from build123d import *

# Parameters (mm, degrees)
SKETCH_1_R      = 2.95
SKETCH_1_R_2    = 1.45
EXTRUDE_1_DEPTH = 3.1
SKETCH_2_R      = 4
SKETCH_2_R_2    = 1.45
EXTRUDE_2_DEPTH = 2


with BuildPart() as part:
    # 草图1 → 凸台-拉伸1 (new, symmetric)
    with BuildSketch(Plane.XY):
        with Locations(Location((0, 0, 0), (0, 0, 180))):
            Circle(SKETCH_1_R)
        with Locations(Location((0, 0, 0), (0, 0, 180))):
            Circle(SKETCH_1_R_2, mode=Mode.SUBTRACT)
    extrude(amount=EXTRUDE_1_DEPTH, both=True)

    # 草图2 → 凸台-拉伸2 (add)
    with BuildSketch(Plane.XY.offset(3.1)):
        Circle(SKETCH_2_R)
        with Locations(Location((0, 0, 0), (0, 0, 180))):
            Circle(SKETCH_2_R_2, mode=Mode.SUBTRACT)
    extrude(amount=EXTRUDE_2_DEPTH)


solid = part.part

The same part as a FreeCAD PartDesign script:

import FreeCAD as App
import Part
import Sketcher
from FreeCAD import Vector

doc = App.newDocument("Part")
body = doc.addObject("PartDesign::Body", "Body")

# Sketch on XY plane
sketch1 = body.newObject("Sketcher::SketchObject", "Sketch")
sketch1.AttachmentSupport = (doc.getObject("XY_Plane"), [""])
sketch1.MapMode = "FlatFace"
sketch1.addGeometry(Part.Circle(Vector(0, 0, 0), Vector(0, 0, 1), 3), False)
sketch1.addGeometry(Part.Circle(Vector(0, 0, 0), Vector(0, 0, 1), 1.4), False)
sketch1.addConstraint(Sketcher.Constraint("Coincident", 0, 3, -1, 1))
sketch1.addConstraint(Sketcher.Constraint("Coincident", 1, 3, -1, 1))
sketch1.addConstraint(Sketcher.Constraint("Diameter", 0, 5.9))
sketch1.addConstraint(Sketcher.Constraint("Diameter", 1, 2.9))
pad1 = body.newObject("PartDesign::Pad", "Pad")
pad1.Profile = sketch1
pad1.Length = 6.2
pad1.Midplane = True

# Sketch on XY plane
sketch2 = body.newObject("Sketcher::SketchObject", "Sketch001")
sketch2.AttachmentSupport = (doc.getObject("XY_Plane"), [""])
sketch2.MapMode = "FlatFace"
sketch2.AttachmentOffset = App.Placement(Vector(0, 0, 3.1), App.Rotation())
sketch2.addGeometry(Part.Circle(Vector(0, 0, 0), Vector(0, 0, 1), 4), False)
sketch2.addGeometry(Part.Circle(Vector(0, 0, 0), Vector(0, 0, 1), 1.4), False)
sketch2.addConstraint(Sketcher.Constraint("Coincident", 0, 3, -1, 1))
sketch2.addConstraint(Sketcher.Constraint("Coincident", 1, 3, -1, 1))
sketch2.addConstraint(Sketcher.Constraint("Diameter", 0, 8.0))
sketch2.addConstraint(Sketcher.Constraint("Diameter", 1, 2.9))
pad2 = body.newObject("PartDesign::Pad", "Pad001")
pad2.Profile = sketch2
pad2.Length = 2

doc.recompute()
